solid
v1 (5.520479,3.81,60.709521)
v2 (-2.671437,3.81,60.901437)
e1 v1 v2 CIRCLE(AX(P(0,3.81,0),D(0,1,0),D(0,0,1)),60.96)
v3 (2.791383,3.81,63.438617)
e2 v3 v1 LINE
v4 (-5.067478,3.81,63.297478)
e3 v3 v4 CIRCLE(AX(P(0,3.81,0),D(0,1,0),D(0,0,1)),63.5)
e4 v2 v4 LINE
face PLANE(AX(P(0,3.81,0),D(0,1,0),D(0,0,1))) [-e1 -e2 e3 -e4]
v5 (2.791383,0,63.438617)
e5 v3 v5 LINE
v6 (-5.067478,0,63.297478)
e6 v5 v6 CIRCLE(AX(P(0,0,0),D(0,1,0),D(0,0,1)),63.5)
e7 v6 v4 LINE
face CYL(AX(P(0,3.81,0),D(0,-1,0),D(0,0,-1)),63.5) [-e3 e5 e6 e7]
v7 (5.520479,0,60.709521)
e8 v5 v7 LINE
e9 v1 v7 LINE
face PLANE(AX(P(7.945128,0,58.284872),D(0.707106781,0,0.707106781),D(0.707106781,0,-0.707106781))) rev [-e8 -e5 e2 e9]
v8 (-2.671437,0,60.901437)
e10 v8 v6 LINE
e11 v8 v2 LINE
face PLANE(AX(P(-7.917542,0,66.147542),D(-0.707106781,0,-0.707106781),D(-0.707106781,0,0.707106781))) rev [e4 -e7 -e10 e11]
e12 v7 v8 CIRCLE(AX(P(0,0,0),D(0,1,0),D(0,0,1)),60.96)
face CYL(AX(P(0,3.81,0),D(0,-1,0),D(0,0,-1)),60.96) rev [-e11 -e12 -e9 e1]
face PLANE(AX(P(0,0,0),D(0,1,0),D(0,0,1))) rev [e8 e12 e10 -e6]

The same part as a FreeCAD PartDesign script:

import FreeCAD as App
import Part
import Sketcher

V = App.Vector
Q = App.Units.Quantity

doc = App.newDocument("Part")
params = doc.addObject("Spreadsheet::Sheet", "Params")
for row, (alias, value) in enumerate([
    ("sketch1_diameter", "5 in"),
    ("sketch1_diameter2", "4.8 in"),
    ("pad1_length", "0.15 in"),
], start=1):
    params.set(f"A{row}", alias)
    params.set(f"B{row}", "=" + value)
    params.setAlias(f"B{row}", alias)

body = doc.addObject("PartDesign::Body", "Body")

# Sketch on XZ plane
sketch1 = body.newObject("Sketcher::SketchObject", "Sketch")
sketch1.AttachmentSupport = (doc.getObject("XZ_Plane"), [""])
sketch1.MapMode = "FlatFace"
sketch1.addGeometry(Part.Circle(V(0, 0, 0), V(0, 0, 1), 64), False)
sketch1.addGeometry(Part.Circle(V(0, 0, 0), V(0, 0, 1), 61), False)
sketch1.addConstraint(Sketcher.Constraint("Coincident", 0, 3, -1, 1))
sketch1.addConstraint(Sketcher.Constraint("Coincident", 1, 3, -1, 1))
sketch1.addConstraint(Sketcher.Constraint("Diameter", 0, Q("5 in")))
sketch1.addConstraint(Sketcher.Constraint("Diameter", 1, Q("4.8 in")))
sketch1.setExpression("Constraints[2]", "Params.sketch1_diameter")
sketch1.setExpression("Constraints[3]", "Params.sketch1_diameter2")
pad1 = body.newObject("PartDesign::Pad", "Pad")
pad1.Profile = sketch1
pad1.setExpression("Length", "Params.pad1_length")
pad1.Reversed = True

# Sketch on XZ plane
sketch2 = body.newObject("Sketcher::SketchObject", "Sketch001")
sketch2.AttachmentSupport = (doc.getObject("XZ_Plane"), [""])
sketch2.MapMode = "FlatFace"
sketch2.AttachmentOffset = App.Placement(V(0, 0, -0.15 * 25.4), App.Rotation())
sketch2.addGeometry(Part.LineSegment(V(8, 58, 0), V(0, 58, 0)), False)
sketch2.addGeometry(Part.LineSegment(V(0, 58, 0), V(-8, 66, 0)), False)
sketch2.addGeometry(Part.LineSegment(V(-8, 66, 0), V(0, 66, 0)), False)
sketch2.addGeometry(Part.LineSegment(V(0, 66, 0), V(8, 58, 0)), False)
sketch2.addConstraint(Sketcher.Constraint("Coincident", 0, 2, 1, 1))
sketch2.addConstraint(Sketcher.Constraint("Coincident", 1, 2, 2, 1))
sketch2.addConstraint(Sketcher.Constraint("Coincident", 2, 2, 3, 1))
sketch2.addConstraint(Sketcher.Constraint("Coincident", 3, 2, 0, 1))
sketch2.addConstraint(Sketcher.Constraint("Horizontal", 0))
sketch2.addConstraint(Sketcher.Constraint("Horizontal", 2))
sketch2.addConstraint(Sketcher.Constraint("Parallel", 1, 3))
sketch2.addConstraint(Sketcher.Constraint("Angle", 1, Q("135 deg")))
sketch2.addConstraint(Sketcher.Constraint("DistanceX", 0, 2, 0, 1, 8.0))
sketch2.addConstraint(Sketcher.Constraint("DistanceX", 0, 2, -1, 1, 0.054872))
sketch2.addConstraint(Sketcher.Constraint("DistanceY", -1, 1, 0, 2, 58.284872))
sketch2.addConstraint(Sketcher.Constraint("DistanceX", 1, 2, 0, 2, 7.862671))
pocket1 = body.newObject("PartDesign::Pocket", "Pocket")
pocket1.Profile = sketch2
pocket1.Type = "ThroughAll"
pocket1.Reversed = True

doc.recompute()
